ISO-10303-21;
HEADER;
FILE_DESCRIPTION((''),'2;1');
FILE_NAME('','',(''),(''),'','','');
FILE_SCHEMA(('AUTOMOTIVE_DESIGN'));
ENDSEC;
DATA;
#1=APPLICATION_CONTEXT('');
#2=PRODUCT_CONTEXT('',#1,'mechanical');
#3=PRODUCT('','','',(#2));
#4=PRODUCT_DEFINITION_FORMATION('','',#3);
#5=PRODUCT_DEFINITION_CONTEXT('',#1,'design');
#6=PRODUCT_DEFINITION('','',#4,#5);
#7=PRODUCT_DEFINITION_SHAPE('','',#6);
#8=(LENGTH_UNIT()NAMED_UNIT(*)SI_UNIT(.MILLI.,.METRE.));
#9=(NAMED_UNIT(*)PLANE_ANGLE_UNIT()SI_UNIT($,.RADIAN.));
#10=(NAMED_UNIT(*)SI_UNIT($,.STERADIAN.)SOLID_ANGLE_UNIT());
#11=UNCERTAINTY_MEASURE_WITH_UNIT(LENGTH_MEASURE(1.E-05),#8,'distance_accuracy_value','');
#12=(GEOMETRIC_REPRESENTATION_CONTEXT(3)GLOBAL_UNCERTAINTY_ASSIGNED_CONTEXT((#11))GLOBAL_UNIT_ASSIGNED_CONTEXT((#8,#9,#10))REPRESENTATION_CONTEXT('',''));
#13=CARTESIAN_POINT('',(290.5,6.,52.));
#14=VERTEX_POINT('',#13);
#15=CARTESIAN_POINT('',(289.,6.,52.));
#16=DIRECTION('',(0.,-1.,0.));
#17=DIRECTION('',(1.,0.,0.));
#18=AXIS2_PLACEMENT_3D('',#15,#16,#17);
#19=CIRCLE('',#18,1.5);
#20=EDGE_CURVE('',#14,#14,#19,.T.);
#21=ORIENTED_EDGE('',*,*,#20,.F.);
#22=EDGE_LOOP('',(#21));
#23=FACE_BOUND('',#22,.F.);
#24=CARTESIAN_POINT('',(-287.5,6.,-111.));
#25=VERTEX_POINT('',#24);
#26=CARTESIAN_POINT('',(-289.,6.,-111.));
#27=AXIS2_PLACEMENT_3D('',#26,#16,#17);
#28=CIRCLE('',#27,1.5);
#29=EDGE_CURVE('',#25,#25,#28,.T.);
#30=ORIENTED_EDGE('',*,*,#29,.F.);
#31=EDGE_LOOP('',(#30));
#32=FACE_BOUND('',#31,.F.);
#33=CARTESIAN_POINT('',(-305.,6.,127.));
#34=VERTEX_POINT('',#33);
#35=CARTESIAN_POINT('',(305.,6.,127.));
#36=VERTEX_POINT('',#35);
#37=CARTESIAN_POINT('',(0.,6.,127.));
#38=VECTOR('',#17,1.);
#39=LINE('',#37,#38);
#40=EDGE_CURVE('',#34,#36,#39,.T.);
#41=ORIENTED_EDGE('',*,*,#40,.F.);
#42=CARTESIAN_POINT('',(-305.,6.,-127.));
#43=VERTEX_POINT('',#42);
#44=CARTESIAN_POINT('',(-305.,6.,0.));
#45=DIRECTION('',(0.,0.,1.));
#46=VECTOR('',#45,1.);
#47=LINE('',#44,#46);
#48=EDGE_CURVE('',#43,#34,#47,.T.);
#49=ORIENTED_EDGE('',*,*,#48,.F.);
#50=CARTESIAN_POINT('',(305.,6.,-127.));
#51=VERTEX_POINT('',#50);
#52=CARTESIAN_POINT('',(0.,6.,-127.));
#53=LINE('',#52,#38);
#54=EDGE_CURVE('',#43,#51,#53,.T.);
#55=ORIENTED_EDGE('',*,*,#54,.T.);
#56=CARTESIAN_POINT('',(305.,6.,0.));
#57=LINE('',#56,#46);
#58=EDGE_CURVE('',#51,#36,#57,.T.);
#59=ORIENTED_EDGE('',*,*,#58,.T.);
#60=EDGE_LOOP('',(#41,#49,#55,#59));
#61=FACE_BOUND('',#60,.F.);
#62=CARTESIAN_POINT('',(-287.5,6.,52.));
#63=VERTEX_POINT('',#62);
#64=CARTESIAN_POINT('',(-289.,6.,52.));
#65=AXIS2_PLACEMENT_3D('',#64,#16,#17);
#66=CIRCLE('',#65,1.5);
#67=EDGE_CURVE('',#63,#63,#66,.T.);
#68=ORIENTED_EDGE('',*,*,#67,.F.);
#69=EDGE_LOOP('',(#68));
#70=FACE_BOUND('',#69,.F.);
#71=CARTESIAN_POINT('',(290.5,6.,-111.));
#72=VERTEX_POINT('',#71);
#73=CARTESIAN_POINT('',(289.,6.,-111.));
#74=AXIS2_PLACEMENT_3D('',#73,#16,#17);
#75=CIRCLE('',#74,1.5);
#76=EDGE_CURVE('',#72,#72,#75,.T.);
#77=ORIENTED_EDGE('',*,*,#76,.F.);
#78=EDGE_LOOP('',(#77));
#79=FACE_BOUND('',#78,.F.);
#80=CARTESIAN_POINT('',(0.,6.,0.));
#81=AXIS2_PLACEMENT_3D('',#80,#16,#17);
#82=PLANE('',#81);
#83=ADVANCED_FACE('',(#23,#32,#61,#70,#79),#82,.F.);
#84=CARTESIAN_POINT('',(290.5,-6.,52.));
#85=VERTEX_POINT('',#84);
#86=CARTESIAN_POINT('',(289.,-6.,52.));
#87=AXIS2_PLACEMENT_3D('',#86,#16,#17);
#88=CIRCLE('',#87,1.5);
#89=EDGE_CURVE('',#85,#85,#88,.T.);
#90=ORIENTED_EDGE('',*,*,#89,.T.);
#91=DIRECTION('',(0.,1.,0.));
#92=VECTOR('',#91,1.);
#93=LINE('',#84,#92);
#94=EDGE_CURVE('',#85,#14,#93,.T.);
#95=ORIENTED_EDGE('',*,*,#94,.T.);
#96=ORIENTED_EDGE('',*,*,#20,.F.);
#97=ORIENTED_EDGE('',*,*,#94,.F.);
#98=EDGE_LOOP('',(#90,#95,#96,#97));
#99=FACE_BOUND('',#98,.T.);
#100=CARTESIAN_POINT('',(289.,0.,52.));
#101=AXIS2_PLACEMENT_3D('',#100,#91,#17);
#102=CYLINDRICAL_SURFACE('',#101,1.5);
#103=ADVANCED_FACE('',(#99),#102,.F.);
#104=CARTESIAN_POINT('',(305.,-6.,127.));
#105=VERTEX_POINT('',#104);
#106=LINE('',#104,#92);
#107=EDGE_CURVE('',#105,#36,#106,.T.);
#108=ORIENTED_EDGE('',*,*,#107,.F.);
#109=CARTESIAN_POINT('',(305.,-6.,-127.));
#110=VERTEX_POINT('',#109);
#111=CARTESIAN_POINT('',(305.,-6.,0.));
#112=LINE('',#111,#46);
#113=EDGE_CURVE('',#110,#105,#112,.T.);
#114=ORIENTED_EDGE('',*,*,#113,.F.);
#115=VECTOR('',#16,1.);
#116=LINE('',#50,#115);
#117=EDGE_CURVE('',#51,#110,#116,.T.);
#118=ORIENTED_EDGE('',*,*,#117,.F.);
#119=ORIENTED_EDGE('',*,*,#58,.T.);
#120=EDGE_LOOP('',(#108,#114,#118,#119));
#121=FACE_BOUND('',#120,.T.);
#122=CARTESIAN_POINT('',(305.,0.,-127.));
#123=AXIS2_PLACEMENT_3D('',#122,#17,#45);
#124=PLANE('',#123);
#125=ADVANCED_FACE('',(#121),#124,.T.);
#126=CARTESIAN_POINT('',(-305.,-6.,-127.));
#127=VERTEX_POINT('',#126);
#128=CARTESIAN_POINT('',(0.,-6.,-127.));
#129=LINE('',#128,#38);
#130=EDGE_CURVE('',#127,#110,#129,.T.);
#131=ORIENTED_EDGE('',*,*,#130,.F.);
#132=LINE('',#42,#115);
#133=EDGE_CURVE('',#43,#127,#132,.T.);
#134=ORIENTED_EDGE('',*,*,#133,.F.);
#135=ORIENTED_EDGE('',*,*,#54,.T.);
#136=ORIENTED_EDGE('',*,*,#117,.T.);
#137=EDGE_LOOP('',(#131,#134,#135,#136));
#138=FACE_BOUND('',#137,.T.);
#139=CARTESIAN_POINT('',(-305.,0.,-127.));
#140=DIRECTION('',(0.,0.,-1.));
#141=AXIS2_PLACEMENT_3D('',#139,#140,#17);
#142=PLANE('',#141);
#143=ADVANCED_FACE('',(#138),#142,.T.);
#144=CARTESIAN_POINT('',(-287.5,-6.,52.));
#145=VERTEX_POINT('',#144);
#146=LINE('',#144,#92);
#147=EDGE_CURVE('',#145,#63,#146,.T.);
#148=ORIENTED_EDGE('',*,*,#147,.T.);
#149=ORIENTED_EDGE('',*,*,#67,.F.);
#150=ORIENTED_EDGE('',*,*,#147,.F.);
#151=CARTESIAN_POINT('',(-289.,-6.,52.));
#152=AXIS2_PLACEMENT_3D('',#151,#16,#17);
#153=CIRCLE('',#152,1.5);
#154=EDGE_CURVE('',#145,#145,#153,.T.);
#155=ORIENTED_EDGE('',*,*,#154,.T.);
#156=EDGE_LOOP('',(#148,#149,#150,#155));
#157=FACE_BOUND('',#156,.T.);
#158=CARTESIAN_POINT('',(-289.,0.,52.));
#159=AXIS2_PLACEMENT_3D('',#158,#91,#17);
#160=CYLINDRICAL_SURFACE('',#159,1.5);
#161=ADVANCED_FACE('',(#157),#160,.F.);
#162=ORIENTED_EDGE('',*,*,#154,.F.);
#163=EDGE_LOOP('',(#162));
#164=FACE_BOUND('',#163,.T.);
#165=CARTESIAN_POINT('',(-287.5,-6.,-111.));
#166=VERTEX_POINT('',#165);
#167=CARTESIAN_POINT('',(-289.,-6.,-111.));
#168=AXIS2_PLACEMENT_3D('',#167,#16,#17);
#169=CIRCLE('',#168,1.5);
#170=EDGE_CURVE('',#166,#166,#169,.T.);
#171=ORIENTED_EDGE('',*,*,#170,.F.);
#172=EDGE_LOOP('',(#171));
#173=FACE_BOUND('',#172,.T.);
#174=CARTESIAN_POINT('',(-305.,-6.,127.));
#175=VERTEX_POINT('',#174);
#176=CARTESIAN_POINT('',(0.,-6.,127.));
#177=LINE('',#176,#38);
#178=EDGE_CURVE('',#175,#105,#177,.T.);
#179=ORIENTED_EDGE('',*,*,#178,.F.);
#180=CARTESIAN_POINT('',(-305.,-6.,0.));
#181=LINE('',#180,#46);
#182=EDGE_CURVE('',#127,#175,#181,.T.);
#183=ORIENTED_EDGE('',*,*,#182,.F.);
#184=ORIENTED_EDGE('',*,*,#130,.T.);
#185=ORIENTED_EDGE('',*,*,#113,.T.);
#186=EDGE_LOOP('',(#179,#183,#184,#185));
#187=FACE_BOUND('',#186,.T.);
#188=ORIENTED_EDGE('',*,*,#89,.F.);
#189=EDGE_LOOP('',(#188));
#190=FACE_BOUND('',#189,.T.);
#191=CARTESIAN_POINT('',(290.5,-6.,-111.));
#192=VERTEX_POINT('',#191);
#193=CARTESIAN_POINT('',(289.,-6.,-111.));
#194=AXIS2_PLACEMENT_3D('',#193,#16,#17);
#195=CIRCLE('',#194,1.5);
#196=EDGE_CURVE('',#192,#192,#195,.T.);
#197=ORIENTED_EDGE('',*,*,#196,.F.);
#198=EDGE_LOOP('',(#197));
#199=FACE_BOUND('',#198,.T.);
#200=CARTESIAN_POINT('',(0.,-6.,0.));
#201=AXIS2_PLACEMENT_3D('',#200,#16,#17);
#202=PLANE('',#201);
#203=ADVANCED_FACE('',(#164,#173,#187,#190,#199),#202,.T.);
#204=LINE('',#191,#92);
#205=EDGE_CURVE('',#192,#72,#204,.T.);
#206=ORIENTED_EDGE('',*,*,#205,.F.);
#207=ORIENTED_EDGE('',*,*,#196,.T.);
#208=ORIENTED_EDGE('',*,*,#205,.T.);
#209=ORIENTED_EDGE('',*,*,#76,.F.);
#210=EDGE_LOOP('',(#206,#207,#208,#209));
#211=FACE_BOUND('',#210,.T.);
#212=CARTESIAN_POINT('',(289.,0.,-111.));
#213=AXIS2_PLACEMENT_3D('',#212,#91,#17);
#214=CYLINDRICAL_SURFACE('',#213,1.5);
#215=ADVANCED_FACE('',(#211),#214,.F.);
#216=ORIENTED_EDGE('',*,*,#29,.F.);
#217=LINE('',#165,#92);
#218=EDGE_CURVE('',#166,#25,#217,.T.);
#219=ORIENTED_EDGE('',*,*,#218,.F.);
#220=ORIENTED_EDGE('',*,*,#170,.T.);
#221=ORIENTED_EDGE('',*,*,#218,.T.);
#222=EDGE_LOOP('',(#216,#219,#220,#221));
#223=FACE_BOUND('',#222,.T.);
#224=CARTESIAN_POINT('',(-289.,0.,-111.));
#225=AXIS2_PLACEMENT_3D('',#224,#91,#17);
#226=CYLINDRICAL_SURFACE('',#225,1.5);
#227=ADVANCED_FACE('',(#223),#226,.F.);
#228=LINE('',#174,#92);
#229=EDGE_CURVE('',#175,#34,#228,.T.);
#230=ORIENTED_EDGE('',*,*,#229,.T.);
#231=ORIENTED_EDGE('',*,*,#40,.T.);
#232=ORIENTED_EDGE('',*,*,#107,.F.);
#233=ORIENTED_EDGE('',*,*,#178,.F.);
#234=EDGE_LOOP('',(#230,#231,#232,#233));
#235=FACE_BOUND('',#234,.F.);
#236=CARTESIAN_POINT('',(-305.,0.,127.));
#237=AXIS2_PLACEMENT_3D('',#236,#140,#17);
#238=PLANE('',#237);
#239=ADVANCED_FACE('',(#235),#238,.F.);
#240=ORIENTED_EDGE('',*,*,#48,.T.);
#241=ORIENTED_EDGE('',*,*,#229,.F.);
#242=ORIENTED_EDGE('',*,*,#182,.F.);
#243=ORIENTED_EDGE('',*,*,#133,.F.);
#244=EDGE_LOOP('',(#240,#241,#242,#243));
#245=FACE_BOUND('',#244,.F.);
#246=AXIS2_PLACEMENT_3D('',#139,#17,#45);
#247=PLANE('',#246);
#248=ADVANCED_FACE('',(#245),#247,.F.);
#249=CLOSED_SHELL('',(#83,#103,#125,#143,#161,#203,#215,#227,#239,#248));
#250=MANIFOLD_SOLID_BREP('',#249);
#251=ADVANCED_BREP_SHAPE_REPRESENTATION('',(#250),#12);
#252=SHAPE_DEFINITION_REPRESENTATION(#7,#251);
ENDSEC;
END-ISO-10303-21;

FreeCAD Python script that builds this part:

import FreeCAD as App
import Part
import Sketcher


def add_polygon(sketch, points):
    """Adds a closed chain of lines whose ends are joined by coincident constraints."""
    first, n = sketch.GeometryCount, len(points)
    for a, b in zip(points, points[1:] + points[:1]):
        sketch.addGeometry(Part.LineSegment(App.Vector(*a, 0), App.Vector(*b, 0)), False)
    for i in range(n):
        sketch.addConstraint(Sketcher.Constraint("Coincident", first + i, 2, first + (i + 1) % n, 1))

doc = App.newDocument("Part")
body = doc.addObject("PartDesign::Body", "Body")

sketch1 = body.newObject("Sketcher::SketchObject", "Sketch")
sketch1.AttachmentSupport = (doc.getObject("XZ_Plane"), [""])
sketch1.MapMode = "FlatFace"
add_polygon(sketch1, [(-305, 127), (-305, -127), (305, -127), (305, 127)])
sketch1.addGeometry(Part.Circle(App.Vector(-289, -111, 0), App.Vector(0, 0, 1), 1.5), False)
sketch1.addGeometry(Part.Circle(App.Vector(289, -111, 0), App.Vector(0, 0, 1), 1.5), False)
sketch1.addGeometry(Part.Circle(App.Vector(-289, 52, 0), App.Vector(0, 0, 1), 1.5), False)
sketch1.addGeometry(Part.Circle(App.Vector(289, 52, 0), App.Vector(0, 0, 1), 1.5), False)
sketch1.addConstraint([
    Sketcher.Constraint("Vertical", 0),
    Sketcher.Constraint("Horizontal", 1),
    Sketcher.Constraint("Vertical", 2),
    Sketcher.Constraint("Horizontal", 3),
    Sketcher.Constraint("Equal", 4, 5),
    Sketcher.Constraint("Equal", 5, 6),
    Sketcher.Constraint("Equal", 6, 7),
    Sketcher.Constraint("Symmetric", 0, 2, 2, 2, -1, 1),
    Sketcher.Constraint("Symmetric", 4, 3, 5, 3, -2),
    Sketcher.Constraint("Symmetric", 6, 3, 7, 3, -2),
    Sketcher.Constraint("Vertical", 4, 3, 6, 3),
    Sketcher.Constraint("Diameter", 4, 3.0),
    Sketcher.Constraint("DistanceX", 1, 1, 1, 2, 610.0),
    Sketcher.Constraint("DistanceY", 0, 2, 0, 1, 254.0),
    Sketcher.Constraint("DistanceX", 4, 3, -1, 1, 289.0),
    Sketcher.Constraint("DistanceY", 4, 3, -1, 1, 111.0),
    Sketcher.Constraint("DistanceY", -1, 1, 6, 3, 52.0),
])
pad1 = body.newObject("PartDesign::Pad", "Pad")
pad1.Profile = sketch1
pad1.Length = 12
pad1.Midplane = True

doc.recompute()
